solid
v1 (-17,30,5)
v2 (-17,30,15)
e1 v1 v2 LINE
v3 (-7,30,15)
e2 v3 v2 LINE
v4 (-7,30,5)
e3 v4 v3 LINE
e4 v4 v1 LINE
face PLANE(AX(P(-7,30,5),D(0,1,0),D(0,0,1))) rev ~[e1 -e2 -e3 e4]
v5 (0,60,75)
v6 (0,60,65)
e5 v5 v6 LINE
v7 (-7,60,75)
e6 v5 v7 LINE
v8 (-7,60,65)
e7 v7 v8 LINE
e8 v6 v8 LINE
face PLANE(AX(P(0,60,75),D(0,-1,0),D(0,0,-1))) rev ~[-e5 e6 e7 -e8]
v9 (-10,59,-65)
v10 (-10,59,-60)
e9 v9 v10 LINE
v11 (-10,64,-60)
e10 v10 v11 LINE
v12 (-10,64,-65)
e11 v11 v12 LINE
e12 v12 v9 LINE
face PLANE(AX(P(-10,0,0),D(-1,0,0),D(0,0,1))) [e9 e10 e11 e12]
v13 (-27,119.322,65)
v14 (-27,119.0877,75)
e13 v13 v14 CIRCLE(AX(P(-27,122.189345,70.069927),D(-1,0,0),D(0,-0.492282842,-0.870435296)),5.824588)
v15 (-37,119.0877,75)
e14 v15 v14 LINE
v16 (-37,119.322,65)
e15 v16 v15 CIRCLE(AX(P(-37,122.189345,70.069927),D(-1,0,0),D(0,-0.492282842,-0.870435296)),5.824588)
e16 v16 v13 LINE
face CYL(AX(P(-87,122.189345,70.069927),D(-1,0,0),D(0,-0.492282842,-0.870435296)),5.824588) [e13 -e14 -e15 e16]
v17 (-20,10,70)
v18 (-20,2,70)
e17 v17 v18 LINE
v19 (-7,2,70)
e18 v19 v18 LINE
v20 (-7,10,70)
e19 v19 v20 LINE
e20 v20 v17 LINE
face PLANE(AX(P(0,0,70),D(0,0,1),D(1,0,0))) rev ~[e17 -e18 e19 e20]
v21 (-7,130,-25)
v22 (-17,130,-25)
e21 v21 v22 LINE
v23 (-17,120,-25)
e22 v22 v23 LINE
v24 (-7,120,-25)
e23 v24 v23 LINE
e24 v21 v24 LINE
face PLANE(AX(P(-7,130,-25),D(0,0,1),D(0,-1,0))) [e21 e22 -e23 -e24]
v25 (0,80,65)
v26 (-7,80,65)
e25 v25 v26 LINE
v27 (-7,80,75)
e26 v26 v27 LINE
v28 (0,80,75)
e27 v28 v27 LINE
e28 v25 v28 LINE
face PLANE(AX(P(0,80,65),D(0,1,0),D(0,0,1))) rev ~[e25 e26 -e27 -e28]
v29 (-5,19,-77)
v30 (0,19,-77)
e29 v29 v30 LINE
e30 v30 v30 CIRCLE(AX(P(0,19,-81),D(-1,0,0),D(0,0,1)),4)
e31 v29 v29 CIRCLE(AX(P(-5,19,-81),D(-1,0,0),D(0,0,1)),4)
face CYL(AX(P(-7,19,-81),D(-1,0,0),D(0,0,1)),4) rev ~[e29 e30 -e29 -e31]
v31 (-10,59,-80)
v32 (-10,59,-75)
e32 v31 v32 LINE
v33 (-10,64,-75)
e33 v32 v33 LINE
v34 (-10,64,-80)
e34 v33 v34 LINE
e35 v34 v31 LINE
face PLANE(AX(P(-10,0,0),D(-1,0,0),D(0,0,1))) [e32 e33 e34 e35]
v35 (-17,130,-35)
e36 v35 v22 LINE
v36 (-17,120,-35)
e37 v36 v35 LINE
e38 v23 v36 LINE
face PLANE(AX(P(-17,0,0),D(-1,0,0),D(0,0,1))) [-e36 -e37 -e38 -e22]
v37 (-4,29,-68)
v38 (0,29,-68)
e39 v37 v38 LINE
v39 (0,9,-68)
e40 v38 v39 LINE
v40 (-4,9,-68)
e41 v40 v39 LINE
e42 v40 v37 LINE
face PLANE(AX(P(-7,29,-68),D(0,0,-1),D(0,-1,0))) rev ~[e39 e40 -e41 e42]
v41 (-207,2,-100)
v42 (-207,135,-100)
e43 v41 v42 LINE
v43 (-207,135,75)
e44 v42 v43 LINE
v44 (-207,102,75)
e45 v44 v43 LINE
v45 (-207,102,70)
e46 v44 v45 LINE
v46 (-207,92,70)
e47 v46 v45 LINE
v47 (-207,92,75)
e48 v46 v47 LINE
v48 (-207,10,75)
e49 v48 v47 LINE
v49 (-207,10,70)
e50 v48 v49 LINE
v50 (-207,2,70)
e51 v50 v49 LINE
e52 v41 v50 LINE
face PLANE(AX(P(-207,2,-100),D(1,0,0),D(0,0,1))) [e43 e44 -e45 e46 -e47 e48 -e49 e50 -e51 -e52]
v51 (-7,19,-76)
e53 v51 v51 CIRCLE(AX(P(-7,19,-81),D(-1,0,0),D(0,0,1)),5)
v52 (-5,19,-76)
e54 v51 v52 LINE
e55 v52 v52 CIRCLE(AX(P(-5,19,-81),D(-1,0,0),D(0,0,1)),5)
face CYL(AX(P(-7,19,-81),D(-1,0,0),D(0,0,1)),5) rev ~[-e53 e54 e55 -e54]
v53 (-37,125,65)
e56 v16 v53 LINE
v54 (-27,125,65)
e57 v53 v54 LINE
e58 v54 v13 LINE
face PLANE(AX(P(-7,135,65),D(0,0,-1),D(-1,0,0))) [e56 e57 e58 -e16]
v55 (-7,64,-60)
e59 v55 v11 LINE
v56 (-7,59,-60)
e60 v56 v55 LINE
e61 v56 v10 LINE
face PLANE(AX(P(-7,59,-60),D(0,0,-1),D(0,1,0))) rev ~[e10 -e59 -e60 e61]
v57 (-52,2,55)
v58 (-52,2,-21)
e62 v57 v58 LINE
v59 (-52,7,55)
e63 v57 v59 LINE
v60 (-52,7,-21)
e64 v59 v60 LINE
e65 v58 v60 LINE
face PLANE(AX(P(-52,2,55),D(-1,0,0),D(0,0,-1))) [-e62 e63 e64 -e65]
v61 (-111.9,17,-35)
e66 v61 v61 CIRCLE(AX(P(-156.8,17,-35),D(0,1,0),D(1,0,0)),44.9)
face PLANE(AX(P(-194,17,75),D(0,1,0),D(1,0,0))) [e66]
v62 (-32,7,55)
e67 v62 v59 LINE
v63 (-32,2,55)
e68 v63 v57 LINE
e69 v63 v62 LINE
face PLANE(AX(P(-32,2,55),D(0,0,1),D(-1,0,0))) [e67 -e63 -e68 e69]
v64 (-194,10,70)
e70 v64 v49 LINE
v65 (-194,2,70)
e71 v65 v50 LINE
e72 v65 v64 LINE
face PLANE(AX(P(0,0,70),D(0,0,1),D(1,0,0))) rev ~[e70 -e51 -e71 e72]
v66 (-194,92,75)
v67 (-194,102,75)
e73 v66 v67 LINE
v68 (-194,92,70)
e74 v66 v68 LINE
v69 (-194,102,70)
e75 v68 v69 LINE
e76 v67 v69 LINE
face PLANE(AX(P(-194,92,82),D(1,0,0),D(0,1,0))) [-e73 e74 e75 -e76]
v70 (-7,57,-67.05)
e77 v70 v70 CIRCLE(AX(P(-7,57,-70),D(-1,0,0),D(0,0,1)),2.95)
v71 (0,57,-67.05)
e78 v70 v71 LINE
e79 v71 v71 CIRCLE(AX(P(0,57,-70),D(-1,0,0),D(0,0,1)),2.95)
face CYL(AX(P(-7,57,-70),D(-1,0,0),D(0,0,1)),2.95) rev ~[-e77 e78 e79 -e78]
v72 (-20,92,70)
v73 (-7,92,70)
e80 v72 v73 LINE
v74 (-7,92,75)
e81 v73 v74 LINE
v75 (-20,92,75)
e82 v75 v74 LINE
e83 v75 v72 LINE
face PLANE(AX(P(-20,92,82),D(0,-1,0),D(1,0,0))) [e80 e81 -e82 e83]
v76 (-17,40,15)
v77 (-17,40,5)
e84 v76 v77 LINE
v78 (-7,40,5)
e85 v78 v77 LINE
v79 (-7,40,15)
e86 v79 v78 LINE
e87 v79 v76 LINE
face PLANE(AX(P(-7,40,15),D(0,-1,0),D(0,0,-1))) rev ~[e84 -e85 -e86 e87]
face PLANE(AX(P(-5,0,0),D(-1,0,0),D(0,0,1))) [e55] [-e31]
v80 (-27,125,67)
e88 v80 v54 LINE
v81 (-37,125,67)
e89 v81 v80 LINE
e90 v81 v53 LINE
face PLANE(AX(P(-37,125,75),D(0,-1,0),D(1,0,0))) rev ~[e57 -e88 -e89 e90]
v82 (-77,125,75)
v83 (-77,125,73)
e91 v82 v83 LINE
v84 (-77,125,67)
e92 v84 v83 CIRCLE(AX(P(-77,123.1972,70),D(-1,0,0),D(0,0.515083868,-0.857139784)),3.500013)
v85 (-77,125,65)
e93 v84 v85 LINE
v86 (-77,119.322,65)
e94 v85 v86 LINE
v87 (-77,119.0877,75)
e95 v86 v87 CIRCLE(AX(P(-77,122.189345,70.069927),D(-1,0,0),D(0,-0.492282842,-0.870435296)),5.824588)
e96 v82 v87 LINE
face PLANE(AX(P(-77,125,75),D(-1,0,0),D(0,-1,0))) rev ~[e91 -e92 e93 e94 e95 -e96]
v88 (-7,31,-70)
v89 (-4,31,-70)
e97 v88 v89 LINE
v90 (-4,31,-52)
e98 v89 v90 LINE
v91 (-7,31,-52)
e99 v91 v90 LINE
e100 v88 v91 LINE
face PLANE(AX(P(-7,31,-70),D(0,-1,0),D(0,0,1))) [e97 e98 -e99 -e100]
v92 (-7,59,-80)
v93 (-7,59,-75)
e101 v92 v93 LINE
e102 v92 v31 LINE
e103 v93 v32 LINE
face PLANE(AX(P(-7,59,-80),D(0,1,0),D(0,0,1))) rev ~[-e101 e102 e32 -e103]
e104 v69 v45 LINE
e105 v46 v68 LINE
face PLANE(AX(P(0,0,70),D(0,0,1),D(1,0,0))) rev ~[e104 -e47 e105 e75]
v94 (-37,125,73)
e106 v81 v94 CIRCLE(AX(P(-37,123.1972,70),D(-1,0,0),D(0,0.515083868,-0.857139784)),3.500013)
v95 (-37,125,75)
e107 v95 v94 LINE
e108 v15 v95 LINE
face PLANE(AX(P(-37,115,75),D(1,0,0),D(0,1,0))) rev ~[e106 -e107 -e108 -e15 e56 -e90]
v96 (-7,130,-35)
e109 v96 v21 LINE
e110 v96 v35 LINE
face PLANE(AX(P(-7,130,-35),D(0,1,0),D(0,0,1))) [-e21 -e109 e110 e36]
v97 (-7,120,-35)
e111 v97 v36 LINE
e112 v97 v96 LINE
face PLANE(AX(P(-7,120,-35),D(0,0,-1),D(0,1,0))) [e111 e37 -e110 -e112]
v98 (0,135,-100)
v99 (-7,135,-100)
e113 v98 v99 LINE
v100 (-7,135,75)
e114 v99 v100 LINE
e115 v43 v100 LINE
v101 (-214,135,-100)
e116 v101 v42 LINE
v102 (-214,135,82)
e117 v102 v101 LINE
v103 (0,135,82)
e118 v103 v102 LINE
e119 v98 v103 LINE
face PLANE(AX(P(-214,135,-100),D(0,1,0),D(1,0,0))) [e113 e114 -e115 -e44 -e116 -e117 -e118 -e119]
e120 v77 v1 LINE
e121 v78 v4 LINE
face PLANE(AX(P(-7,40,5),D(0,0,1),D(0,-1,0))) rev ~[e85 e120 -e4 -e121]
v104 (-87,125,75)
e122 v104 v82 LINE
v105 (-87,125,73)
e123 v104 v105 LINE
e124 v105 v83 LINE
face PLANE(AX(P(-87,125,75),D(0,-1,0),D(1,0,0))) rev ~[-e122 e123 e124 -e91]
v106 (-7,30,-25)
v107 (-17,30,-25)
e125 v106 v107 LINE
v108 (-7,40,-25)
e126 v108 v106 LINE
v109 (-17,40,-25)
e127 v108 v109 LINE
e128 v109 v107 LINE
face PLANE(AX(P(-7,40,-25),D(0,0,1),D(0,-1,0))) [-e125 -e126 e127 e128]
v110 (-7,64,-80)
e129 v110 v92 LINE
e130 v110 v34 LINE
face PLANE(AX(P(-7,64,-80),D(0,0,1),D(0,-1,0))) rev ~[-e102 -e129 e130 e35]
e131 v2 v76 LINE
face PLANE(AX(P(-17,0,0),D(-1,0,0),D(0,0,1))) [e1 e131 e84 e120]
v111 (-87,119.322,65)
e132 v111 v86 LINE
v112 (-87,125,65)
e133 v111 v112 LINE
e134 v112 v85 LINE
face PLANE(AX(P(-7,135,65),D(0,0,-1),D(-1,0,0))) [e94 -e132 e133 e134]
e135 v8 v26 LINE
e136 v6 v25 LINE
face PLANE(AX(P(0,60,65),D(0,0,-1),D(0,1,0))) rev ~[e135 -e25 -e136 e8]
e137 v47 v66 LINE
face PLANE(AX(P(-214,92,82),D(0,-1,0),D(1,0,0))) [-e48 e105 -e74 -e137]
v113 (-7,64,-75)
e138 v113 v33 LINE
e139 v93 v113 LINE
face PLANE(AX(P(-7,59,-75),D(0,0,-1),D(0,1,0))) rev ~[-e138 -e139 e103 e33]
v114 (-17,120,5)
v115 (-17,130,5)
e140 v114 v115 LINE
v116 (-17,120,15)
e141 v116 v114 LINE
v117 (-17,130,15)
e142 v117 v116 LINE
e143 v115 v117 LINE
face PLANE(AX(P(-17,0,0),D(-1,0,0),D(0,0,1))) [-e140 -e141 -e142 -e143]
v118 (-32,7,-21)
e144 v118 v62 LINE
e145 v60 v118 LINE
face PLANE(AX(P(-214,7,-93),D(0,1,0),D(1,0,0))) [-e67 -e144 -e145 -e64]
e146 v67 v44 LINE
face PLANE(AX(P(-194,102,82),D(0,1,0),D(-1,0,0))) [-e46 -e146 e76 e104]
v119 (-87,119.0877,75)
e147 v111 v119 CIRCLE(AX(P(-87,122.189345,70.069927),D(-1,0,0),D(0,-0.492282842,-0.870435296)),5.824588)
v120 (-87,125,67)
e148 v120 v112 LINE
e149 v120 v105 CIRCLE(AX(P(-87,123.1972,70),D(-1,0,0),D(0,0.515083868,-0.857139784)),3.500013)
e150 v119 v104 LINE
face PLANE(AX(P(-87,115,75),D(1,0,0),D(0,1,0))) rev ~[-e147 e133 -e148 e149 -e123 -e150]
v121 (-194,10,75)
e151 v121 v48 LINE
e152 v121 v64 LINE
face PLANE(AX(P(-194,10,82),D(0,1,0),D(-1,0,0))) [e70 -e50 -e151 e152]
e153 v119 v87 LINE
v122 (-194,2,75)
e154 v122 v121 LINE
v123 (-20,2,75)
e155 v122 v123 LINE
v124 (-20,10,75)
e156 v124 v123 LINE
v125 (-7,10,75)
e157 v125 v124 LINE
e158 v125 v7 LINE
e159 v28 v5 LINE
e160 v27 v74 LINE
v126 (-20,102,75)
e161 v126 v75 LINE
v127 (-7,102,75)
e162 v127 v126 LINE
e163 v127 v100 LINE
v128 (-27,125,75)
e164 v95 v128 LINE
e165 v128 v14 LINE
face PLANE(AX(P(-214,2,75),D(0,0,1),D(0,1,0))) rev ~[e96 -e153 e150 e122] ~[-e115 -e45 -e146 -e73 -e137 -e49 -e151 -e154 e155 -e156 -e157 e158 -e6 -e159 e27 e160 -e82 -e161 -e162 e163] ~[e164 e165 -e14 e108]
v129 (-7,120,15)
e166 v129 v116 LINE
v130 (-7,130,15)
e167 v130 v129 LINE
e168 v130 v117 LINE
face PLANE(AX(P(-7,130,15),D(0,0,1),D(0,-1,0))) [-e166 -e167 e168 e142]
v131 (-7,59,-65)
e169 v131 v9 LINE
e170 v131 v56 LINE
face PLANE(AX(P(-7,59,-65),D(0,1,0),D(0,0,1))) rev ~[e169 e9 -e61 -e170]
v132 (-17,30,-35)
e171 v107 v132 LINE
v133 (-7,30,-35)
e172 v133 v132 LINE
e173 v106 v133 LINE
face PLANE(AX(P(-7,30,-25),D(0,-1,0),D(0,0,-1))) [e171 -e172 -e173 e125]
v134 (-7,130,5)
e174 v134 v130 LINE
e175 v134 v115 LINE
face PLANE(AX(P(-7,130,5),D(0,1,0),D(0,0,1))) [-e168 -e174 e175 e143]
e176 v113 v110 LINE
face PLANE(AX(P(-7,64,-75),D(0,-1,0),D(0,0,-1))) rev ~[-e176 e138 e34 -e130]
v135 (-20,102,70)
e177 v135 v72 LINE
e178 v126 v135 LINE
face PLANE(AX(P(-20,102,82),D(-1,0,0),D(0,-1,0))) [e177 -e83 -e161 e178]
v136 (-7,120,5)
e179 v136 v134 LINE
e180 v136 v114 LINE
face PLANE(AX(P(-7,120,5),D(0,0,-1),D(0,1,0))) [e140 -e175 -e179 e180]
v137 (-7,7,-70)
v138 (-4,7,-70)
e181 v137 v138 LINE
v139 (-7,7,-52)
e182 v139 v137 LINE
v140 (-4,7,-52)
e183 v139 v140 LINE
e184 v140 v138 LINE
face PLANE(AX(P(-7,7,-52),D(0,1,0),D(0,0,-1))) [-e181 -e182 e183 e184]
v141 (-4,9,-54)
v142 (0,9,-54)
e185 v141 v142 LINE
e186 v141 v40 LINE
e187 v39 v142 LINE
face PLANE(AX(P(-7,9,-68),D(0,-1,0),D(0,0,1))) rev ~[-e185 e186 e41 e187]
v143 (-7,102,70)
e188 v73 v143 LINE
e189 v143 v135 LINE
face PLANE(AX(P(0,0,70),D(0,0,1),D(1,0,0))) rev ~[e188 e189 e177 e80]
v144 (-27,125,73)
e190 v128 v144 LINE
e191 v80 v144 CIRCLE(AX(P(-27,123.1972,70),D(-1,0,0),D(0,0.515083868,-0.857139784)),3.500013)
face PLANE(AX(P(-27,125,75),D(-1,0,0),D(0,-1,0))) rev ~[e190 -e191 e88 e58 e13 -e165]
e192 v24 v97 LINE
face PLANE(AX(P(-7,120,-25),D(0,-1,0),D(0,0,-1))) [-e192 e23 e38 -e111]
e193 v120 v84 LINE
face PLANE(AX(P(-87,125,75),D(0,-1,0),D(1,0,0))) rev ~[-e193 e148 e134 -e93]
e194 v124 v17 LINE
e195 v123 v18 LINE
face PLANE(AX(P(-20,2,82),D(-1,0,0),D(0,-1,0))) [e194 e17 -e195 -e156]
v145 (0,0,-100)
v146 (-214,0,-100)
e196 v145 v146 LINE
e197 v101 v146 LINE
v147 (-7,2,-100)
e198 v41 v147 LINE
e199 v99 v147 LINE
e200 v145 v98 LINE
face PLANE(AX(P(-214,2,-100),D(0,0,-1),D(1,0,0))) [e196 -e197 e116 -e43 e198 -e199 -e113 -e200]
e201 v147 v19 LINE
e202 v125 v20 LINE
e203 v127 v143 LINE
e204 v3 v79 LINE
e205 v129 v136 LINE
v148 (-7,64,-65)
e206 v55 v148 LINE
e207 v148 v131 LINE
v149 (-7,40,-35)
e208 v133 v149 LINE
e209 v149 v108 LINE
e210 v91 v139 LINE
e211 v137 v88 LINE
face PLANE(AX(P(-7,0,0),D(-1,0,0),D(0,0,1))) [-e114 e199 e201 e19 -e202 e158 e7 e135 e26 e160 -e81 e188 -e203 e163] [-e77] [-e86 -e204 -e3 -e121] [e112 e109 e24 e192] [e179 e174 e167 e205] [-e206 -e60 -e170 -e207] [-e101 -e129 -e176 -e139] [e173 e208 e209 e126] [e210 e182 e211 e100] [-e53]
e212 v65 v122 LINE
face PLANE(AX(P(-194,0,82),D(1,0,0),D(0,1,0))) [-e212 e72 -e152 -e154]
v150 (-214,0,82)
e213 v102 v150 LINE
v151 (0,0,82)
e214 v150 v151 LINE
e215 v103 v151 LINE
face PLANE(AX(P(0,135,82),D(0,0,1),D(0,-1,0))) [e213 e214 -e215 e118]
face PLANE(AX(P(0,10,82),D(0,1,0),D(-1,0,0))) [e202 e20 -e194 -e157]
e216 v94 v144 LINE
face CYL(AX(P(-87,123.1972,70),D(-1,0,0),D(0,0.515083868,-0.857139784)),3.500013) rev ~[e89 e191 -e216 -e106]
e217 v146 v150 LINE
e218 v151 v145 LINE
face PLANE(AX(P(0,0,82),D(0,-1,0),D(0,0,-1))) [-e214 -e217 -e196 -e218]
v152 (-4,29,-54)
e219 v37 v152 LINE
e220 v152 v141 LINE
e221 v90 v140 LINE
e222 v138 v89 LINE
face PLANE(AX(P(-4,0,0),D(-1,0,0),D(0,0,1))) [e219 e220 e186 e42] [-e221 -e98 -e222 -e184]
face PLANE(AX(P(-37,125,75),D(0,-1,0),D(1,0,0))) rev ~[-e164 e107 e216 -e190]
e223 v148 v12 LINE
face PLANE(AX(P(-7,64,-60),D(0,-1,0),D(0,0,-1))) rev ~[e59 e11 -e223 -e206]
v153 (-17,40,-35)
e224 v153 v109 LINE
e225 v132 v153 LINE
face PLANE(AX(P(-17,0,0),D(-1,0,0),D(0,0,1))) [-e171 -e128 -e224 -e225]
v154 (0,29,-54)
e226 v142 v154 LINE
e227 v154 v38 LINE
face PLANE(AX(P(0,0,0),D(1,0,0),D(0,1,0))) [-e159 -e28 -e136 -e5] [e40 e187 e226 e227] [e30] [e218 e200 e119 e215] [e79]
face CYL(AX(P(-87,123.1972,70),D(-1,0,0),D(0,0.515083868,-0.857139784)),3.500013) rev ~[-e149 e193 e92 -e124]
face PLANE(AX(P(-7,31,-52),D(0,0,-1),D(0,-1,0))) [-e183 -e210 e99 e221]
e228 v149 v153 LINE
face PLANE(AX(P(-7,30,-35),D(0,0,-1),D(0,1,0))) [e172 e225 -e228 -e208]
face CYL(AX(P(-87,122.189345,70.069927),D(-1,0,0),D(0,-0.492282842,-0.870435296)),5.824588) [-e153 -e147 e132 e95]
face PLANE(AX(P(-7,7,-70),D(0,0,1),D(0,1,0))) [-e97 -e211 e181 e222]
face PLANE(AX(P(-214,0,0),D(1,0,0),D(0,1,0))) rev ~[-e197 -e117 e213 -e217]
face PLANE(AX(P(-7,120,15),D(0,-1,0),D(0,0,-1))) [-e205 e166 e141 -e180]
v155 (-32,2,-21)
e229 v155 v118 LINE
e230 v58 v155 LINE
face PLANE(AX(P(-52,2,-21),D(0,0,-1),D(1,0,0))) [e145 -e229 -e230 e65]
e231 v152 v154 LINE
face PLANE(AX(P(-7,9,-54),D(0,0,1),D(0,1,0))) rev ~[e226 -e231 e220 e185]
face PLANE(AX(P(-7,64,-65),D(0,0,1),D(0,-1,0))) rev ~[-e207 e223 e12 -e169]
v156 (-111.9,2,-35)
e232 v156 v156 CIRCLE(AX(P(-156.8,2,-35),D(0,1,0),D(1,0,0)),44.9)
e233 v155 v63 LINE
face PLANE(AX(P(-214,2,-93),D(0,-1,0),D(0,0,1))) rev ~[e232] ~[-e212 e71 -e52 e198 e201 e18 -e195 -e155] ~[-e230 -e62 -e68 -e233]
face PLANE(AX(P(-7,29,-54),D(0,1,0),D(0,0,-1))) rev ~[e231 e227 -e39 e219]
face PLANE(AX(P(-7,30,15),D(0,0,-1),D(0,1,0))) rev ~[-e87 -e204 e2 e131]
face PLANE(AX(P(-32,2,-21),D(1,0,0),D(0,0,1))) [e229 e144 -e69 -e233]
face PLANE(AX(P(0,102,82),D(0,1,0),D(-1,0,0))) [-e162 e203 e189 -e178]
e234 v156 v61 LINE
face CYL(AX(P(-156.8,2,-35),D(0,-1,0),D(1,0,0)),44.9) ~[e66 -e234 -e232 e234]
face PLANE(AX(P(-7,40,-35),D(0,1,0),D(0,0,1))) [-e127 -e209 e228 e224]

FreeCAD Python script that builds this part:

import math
import FreeCAD as App
import Part
import Sketcher
Q = App.Units.Quantity


def add_polygon(sketch, points):
    """Adds a closed chain of lines whose ends are joined by coincident constraints."""
    first, n = sketch.GeometryCount, len(points)
    for a, b in zip(points, points[1:] + points[:1]):
        sketch.addGeometry(Part.LineSegment(App.Vector(*a, 0), App.Vector(*b, 0)), False)
    for i in range(n):
        sketch.addConstraint(Sketcher.Constraint("Coincident", first + i, 2, first + (i + 1) % n, 1))

doc = App.newDocument("Part")
params = doc.addObject("Spreadsheet::Sheet", "Params")
for row, (alias, value) in enumerate([
    ("sketch1_width", "135 mm"),
    ("sketch1_height", "182 mm"),
    ("pad1_length", "214 mm"),
    ("sketch2_width", "133 mm"),
    ("sketch2_height", "168 mm"),
    ("pocket1_length", "207 mm"),
    ("sketch3_width", "20 mm"),
    ("sketch3_height", "10 mm"),
    ("pad2_length", "12 mm"),
    ("sketch4_width", "20 mm"),
    ("sketch4_height", "10 mm"),
    ("sketch5_width", "10 mm"),
    ("pad3_length", "10 mm"),
    ("sketch6_width", "10 mm"),
    ("pad4_length", "10 mm"),
    ("sketch7_diameter", "8 mm"),
    ("sketch7_width", "20 mm"),
    ("sketch7_height", "14 mm"),
    ("sketch8_radius", "3.5 mm"),
    ("sketch8_height", "6 mm"),
    ("pocket4_length", "60 mm"),
    ("sketch9_height", "10 mm"),
    ("pocket5_length", "60 mm"),
    ("sketch10_width", "20 mm"),
    ("sketch10_height", "76 mm"),
    ("pad5_length", "5 mm"),
    ("sketch11_width", "207 mm"),
    ("sketch11_height", "133 mm"),
    ("sketch12_width", "7 mm"),
    ("sketch12_height", "175 mm"),
    ("pad6_length", "133 mm"),
    ("sketch13_diameter", "89.8 mm"),
    ("pad7_length", "15 mm"),
    ("sketch14_width", "24 mm"),
    ("sketch14_height", "18 mm"),
    ("pocket7_length", "3 mm"),
    ("sketch15_diameter", "5.9 mm"),
    ("pocket8_length", "7 mm"),
    ("sketch16_width", "5 mm"),
    ("pad8_length", "3 mm"),
    ("sketch17_diameter", "10 mm"),
    ("pocket9_length", "2 mm"),
], start=1):
    params.set(f"A{row}", alias)
    params.set(f"B{row}", "=" + value)
    params.setAlias(f"B{row}", alias)

body = doc.addObject("PartDesign::Body", "Body")

sketch1 = body.newObject("Sketcher::SketchObject", "Sketch")
sketch1.AttachmentSupport = (doc.getObject("YZ_Plane"), [""])
sketch1.MapMode = "FlatFace"
add_polygon(sketch1, [(135, -100), (135, 82), (0, 82), (0, -100)])
sketch1.addConstraint([
    Sketcher.Constraint("Vertical", 0),
    Sketcher.Constraint("Horizontal", 1),
    Sketcher.Constraint("Vertical", 2),
    Sketcher.Constraint("Horizontal", 3),
    Sketcher.Constraint("PointOnObject", 1, 2, -2),
    Sketcher.Constraint("DistanceX", 1, 2, 1, 1, Q("135 mm")),
    Sketcher.Constraint("DistanceY", 0, 1, 0, 2, Q("182 mm")),
    Sketcher.Constraint("DistanceY", 2, 2, -1, 1, Q("100 mm")),
])
sketch1.setExpression("Constraints[9]", "Params.sketch1_width")
sketch1.setExpression("Constraints[10]", "Params.sketch1_height")
pad1 = body.newObject("PartDesign::Pad", "Pad")
pad1.Profile = sketch1
pad1.setExpression("Length", "Params.pad1_length")
pad1.Reversed = True

sketch2 = body.newObject("Sketcher::SketchObject", "Sketch001")
sketch2.AttachmentSupport = (doc.getObject("YZ_Plane"), [""])
sketch2.MapMode = "FlatFace"
sketch2.AttachmentOffset = App.Placement(App.Vector(0, 0, -214), App.Rotation())
add_polygon(sketch2, [(2, 75), (135, 75), (135, -93), (2, -93)])
sketch2.addConstraint([
    Sketcher.Constraint("Horizontal", 0),
    Sketcher.Constraint("Vertical", 1),
    Sketcher.Constraint("Horizontal", 2),
    Sketcher.Constraint("Vertical", 3),
    Sketcher.Constraint("DistanceX", -1, 1, 2, 2, Q("2 mm")),
    Sketcher.Constraint("DistanceX", 0, 1, 0, 2, Q("133 mm")),
    Sketcher.Constraint("DistanceY", 1, 2, 1, 1, Q("168 mm")),
    Sketcher.Constraint("DistanceY", -1, 1, 0, 2, Q("75 mm")),
])
sketch2.setExpression("Constraints[9]", "Params.sketch2_width")
sketch2.setExpression("Constraints[10]", "Params.sketch2_height")
pocket1 = body.newObject("PartDesign::Pocket", "Pocket")
pocket1.Profile = sketch2
pocket1.setExpression("Length", "Params.pocket1_length")
pocket1.Reversed = True

sketch3 = body.newObject("Sketcher::SketchObject", "Sketch002")
sketch3.AttachmentSupport = (doc.getObject("XY_Plane"), [""])
sketch3.MapMode = "FlatFace"
sketch3.AttachmentOffset = App.Placement(App.Vector(0, 0, 82), App.Rotation())
add_polygon(sketch3, [(-20, 10), (-20, 0), (0, 0), (0, 10)])
add_polygon(sketch3, [(-214, 102), (-214, 92), (-194, 92), (-194, 102)])
add_polygon(sketch3, [(-20, 92), (0, 92), (0, 102), (-20, 102)])
add_polygon(sketch3, [(-214, 0), (-194, 0), (-194, 10), (-214, 10)])
sketch3.addConstraint([
    Sketcher.Constraint("Vertical", 0),
    Sketcher.Constraint("Horizontal", 1),
    Sketcher.Constraint("Vertical", 2),
    Sketcher.Constraint("Horizontal", 3),
    Sketcher.Constraint("Vertical", 4),
    Sketcher.Constraint("Horizontal", 5),
    Sketcher.Constraint("Vertical", 6),
    Sketcher.Constraint("Horizontal", 7),
    Sketcher.Constraint("Horizontal", 8),
    Sketcher.Constraint("Vertical", 9),
    Sketcher.Constraint("Horizontal", 10),
    Sketcher.Constraint("Vertical", 11),
    Sketcher.Constraint("Horizontal", 12),
    Sketcher.Constraint("Vertical", 13),
    Sketcher.Constraint("Horizontal", 14),
    Sketcher.Constraint("Vertical", 15),
    Sketcher.Constraint("Coincident", 1, 2, -1, 1),
    Sketcher.Constraint("PointOnObject", 8, 2, -2),
    Sketcher.Constraint("PointOnObject", 12, 2, -1),
    Sketcher.Constraint("Horizontal", 5, 2, 8, 2),
    Sketcher.Constraint("Horizontal", 7, 2, 9, 2),
    Sketcher.Constraint("Horizontal", 3, 2, 13, 2),
    Sketcher.Constraint("Vertical", 3, 2, 10, 2),
    Sketcher.Constraint("Vertical", 6, 2, 12, 2),
    Sketcher.Constraint("Vertical", 7, 2, 14, 2),
    Sketcher.Constraint("Equal", 3, 5),
    Sketcher.Constraint("Equal", 2, 4),
    Sketcher.Constraint("DistanceX", 1, 1, 1, 2, Q("20 mm")),
    Sketcher.Constraint("DistanceY", 0, 2, 0, 1, Q("10 mm")),
    Sketcher.Constraint("DistanceX", 4, 2, -1, 1, Q("214 mm")),
    Sketcher.Constraint("DistanceY", -1, 1, 4, 2, Q("92 mm")),
])
sketch3.setExpression("Constraints[43]", "Params.sketch3_width")
sketch3.setExpression("Constraints[44]", "Params.sketch3_height")
pad2 = body.newObject("PartDesign::Pad", "Pad001")
pad2.Profile = sketch3
pad2.setExpression("Length", "Params.pad2_length")
pad2.Reversed = True

sketch4 = body.newObject("Sketcher::SketchObject", "Sketch003")
sketch4.AttachmentSupport = (doc.getObject("YZ_Plane"), [""])
sketch4.MapMode = "FlatFace"
add_polygon(sketch4, [(80, 75), (60, 75), (60, 65), (80, 65)])
sketch4.addConstraint([
    Sketcher.Constraint("Horizontal", 0),
    Sketcher.Constraint("Vertical", 1),
    Sketcher.Constraint("Horizontal", 2),
    Sketcher.Constraint("Vertical", 3),
    Sketcher.Constraint("DistanceX", 0, 2, 0, 1, Q("20 mm")),
    Sketcher.Constraint("DistanceX", -1, 1, 0, 2, Q("60 mm")),
    Sketcher.Constraint("DistanceY", 1, 2, 1, 1, Q("10 mm")),
    Sketcher.Constraint("DistanceY", -1, 1, 0, 2, Q("75 mm")),
])
sketch4.setExpression("Constraints[8]", "Params.sketch4_width")
sketch4.setExpression("Constraints[10]", "Params.sketch4_height")
pocket2 = body.newObject("PartDesign::Pocket", "Pocket001")
pocket2.Profile = sketch4
pocket2.Type = "UpToFirst"

sketch5 = body.newObject("Sketcher::SketchObject", "Sketch004")
sketch5.AttachmentSupport = (doc.getObject("YZ_Plane"), [""])
sketch5.MapMode = "FlatFace"
sketch5.AttachmentOffset = App.Placement(App.Vector(0, 0, -7), App.Rotation())
add_polygon(sketch5, [(130, -25), (130, -35), (120, -35), (120, -25)])
add_polygon(sketch5, [(130, 15), (130, 5), (120, 5), (120, 15)])
add_polygon(sketch5, [(40, -25), (40, -35), (30, -35), (30, -25)])
add_polygon(sketch5, [(30, 15), (40, 15), (40, 5), (30, 5)])
sketch5.addConstraint([
    Sketcher.Constraint("Vertical", 0),
    Sketcher.Constraint("Horizontal", 1),
    Sketcher.Constraint("Vertical", 2),
    Sketcher.Constraint("Horizontal", 3),
    Sketcher.Constraint("Vertical", 4),
    Sketcher.Constraint("Horizontal", 5),
    Sketcher.Constraint("Vertical", 6),
    Sketcher.Constraint("Horizontal", 7),
    Sketcher.Constraint("Vertical", 8),
    Sketcher.Constraint("Horizontal", 9),
    Sketcher.Constraint("Vertical", 10),
    Sketcher.Constraint("Horizontal", 11),
    Sketcher.Constraint("Horizontal", 12),
    Sketcher.Constraint("Vertical", 13),
    Sketcher.Constraint("Horizontal", 14),
    Sketcher.Constraint("Vertical", 15),
    Sketcher.Constraint("Horizontal", 1, 2, 8, 2),
    Sketcher.Constraint("Horizontal", 3, 2, 10, 2),
    Sketcher.Constraint("Horizontal", 7, 2, 12, 2),
    Sketcher.Constraint("Horizontal", 5, 2, 13, 2),
    Sketcher.Constraint("Vertical", 3, 2, 4, 2),
    Sketcher.Constraint("Vertical", 2, 2, 5, 2),
    Sketcher.Constraint("Vertical", 11, 2, 12, 2),
    Sketcher.Constraint("Vertical", 10, 2, 14, 2),
    Sketcher.Constraint("Equal", 7, 9),
    Sketcher.Constraint("Equal", 14, 0),
    Sketcher.Constraint("Equal", 2, 4),
    Sketcher.Constraint("DistanceX", 1, 2, 1, 1, Q("10 mm")),
    Sketcher.Constraint("DistanceY", -1, 1, 4, 2, Q("5 mm")),
    Sketcher.Constraint("DistanceY", 1, 2, 6, 2, Q("50 mm")),
    Sketcher.Constraint("DistanceX", 9, 2, 0, 2, Q("100 mm")),
    Sketcher.Constraint("DistanceX", -1, 1, 0, 2, Q("130 mm")),
])
sketch5.setExpression("Constraints[43]", "Params.sketch5_width")
pad3 = body.newObject("PartDesign::Pad", "Pad002")
pad3.Profile = sketch5
pad3.setExpression("Length", "Params.pad3_length")
pad3.Reversed = True

sketch6 = body.newObject("Sketcher::SketchObject", "Sketch005")
sketch6.AttachmentSupport = (doc.getObject("XY_Plane"), [""])
sketch6.MapMode = "FlatFace"
sketch6.AttachmentOffset = App.Placement(App.Vector(0, 0, 75), App.Rotation())
add_polygon(sketch6, [(-27, 125), (-27, 115), (-37, 115), (-37, 125)])
add_polygon(sketch6, [(-77, 125), (-77, 115), (-87, 115), (-87, 125)])
sketch6.addConstraint([
    Sketcher.Constraint("Vertical", 0),
    Sketcher.Constraint("Horizontal", 1),
    Sketcher.Constraint("Vertical", 2),
    Sketcher.Constraint("Horizontal", 3),
    Sketcher.Constraint("Vertical", 4),
    Sketcher.Constraint("Horizontal", 5),
    Sketcher.Constraint("Vertical", 6),
    Sketcher.Constraint("Horizontal", 7),
    Sketcher.Constraint("Horizontal", 1, 2, 4, 2),
    Sketcher.Constraint("Horizontal", 3, 2, 6, 2),
    Sketcher.Constraint("Equal", 3, 5),
    Sketcher.Constraint("Equal", 7, 0),
    Sketcher.Constraint("DistanceX", 1, 2, 1, 1, Q("10 mm")),
    Sketcher.Constraint("DistanceX", 4, 2, 0, 2, Q("50 mm")),
    Sketcher.Constraint("DistanceX", 0, 2, -1, 1, Q("27 mm")),
    Sketcher.Constraint("DistanceY", -1, 1, 0, 2, Q("115 mm")),
])
sketch6.setExpression("Constraints[20]", "Params.sketch6_width")
pad4 = body.newObject("PartDesign::Pad", "Pad003")
pad4.Profile = sketch6
pad4.setExpression("Length", "Params.pad4_length")
pad4.Reversed = True

sketch7 = body.newObject("Sketcher::SketchObject", "Sketch006")
sketch7.AttachmentSupport = (doc.getObject("YZ_Plane"), [""])
sketch7.MapMode = "FlatFace"
sketch7.AttachmentOffset = App.Placement(App.Vector(0, 0, -7), App.Rotation())
add_polygon(sketch7, [(29, -68), (9, -68), (9, -54), (29, -54)])
sketch7.addGeometry(Part.Circle(App.Vector(19, -81, 0), App.Vector(0, 0, 1), 4), False)
sketch7.addConstraint([
    Sketcher.Constraint("Horizontal", 0),
    Sketcher.Constraint("Vertical", 1),
    Sketcher.Constraint("Horizontal", 2),
    Sketcher.Constraint("Vertical", 3),
    Sketcher.Constraint("Diameter", 4, Q("8 mm")),
    Sketcher.Constraint("DistanceX", 0, 2, 0, 1, Q("20 mm")),
    Sketcher.Constraint("DistanceY", 1, 1, 1, 2, Q("14 mm")),
    Sketcher.Constraint("DistanceX", -1, 1, 4, 3, Q("19 mm")),
    Sketcher.Constraint("DistanceY", 4, 3, -1, 1, Q("81 mm")),
    Sketcher.Constraint("DistanceX", -1, 1, 0, 2, Q("9 mm")),
    Sketcher.Constraint("DistanceY", 0, 2, -1, 1, Q("68 mm")),
])
sketch7.setExpression("Constraints[8]", "Params.sketch7_diameter")
sketch7.setExpression("Constraints[9]", "Params.sketch7_width")
sketch7.setExpression("Constraints[10]", "Params.sketch7_height")
pocket3 = body.newObject("PartDesign::Pocket", "Pocket002")
pocket3.Profile = sketch7
pocket3.Type = "UpToFirst"
pocket3.Reversed = True

sketch8 = body.newObject("Sketcher::SketchObject", "Sketch007")
sketch8.AttachmentSupport = (doc.getObject("YZ_Plane"), [""])
sketch8.MapMode = "FlatFace"
sketch8.AttachmentOffset = App.Placement(App.Vector(0, 0, -87), App.Rotation())
sketch8.addGeometry([
    Part.ArcOfCircle(Part.Circle(App.Vector(123.2, 70, 0), App.Vector(0, 0, 1), 3.5), math.radians(59), math.radians(301)),
    Part.LineSegment(App.Vector(125, 73, 0), App.Vector(125, 67, 0)),
], False)
sketch8.addConstraint([
    Sketcher.Constraint("Coincident", 0, 1, 1, 1),
    Sketcher.Constraint("Coincident", 1, 2, 0, 2),
    Sketcher.Constraint("Vertical", 1),
    Sketcher.Constraint("Radius", 0, Q("3.5 mm")),
    Sketcher.Constraint("DistanceY", 1, 2, 1, 1, Q("6 mm")),
    Sketcher.Constraint("DistanceY", -1, 1, 0, 3, Q("70 mm")),
    Sketcher.Constraint("DistanceX", -1, 1, 0, 1, Q("125 mm")),
])
sketch8.setExpression("Constraints[3]", "Params.sketch8_radius")
sketch8.setExpression("Constraints[4]", "Params.sketch8_height")
pocket4 = body.newObject("PartDesign::Pocket", "Pocket003")
pocket4.Profile = sketch8
pocket4.setExpression("Length", "Params.pocket4_length")
pocket4.Reversed = True

sketch9 = body.newObject("Sketcher::SketchObject", "Sketch008")
sketch9.AttachmentSupport = (doc.getObject("YZ_Plane"), [""])
sketch9.MapMode = "FlatFace"
sketch9.AttachmentOffset = App.Placement(App.Vector(0, 0, -87), App.Rotation())
sketch9.addGeometry([
    Part.ArcOfCircle(Part.Circle(App.Vector(122.2, 70.1, 0), App.Vector(0, 0, 1), 5.8), math.radians(122), math.radians(241)),
    Part.LineSegment(App.Vector(119.3, 65, 0), App.Vector(115, 65, 0)),
    Part.LineSegment(App.Vector(115, 65, 0), App.Vector(115, 75, 0)),
    Part.LineSegment(App.Vector(115, 75, 0), App.Vector(119.1, 75, 0)),
], False)
sketch9.addConstraint([
    Sketcher.Constraint("Coincident", 0, 2, 1, 1),
    Sketcher.Constraint("Coincident", 1, 2, 2, 1),
    Sketcher.Constraint("Coincident", 2, 2, 3, 1),
    Sketcher.Constraint("Coincident", 3, 2, 0, 1),
    Sketcher.Constraint("Horizontal", 1),
    Sketcher.Constraint("Vertical", 2),
    Sketcher.Constraint("Horizontal", 3),
    Sketcher.Constraint("Radius", 0, Q("5.8245 mm")),
    Sketcher.Constraint("DistanceX", 1, 2, 1, 1, Q("4.322 mm")),
    Sketcher.Constraint("DistanceY", 2, 1, 2, 2, Q("10 mm")),
    Sketcher.Constraint("DistanceY", -1, 1, 0, 2, Q("65 mm")),
    Sketcher.Constraint("DistanceX", -1, 1, 1, 2, Q("115 mm")),
    Sketcher.Constraint("DistanceY", -1, 1, 0, 3, Q("70.07 mm")),
])
sketch9.setExpression("Constraints[9]", "Params.sketch9_height")
pocket5 = body.newObject("PartDesign::Pocket", "Pocket004")
pocket5.Profile = sketch9
pocket5.setExpression("Length", "Params.pocket5_length")
pocket5.Reversed = True

sketch10 = body.newObject("Sketcher::SketchObject", "Sketch009")
sketch10.AttachmentSupport = (doc.getObject("XZ_Plane"), [""])
sketch10.MapMode = "FlatFace"
sketch10.AttachmentOffset = App.Placement(App.Vector(0, 0, -2), App.Rotation())
add_polygon(sketch10, [(-32, -21), (-52, -21), (-52, 55), (-32, 55)])
sketch10.addConstraint([
    Sketcher.Constraint("Horizontal", 0),
    Sketcher.Constraint("Vertical", 1),
    Sketcher.Constraint("Horizontal", 2),
    Sketcher.Constraint("Vertical", 3),
    Sketcher.Constraint("DistanceX", 0, 2, 0, 1, Q("20 mm")),
    Sketcher.Constraint("DistanceY", 1, 1, 1, 2, Q("76 mm")),
    Sketcher.Constraint("DistanceX", 0, 2, -1, 1, Q("52 mm")),
    Sketcher.Constraint("DistanceY", 0, 2, -1, 1, Q("21 mm")),
])
sketch10.setExpression("Constraints[8]", "Params.sketch10_width")
sketch10.setExpression("Constraints[9]", "Params.sketch10_height")
pad5 = body.newObject("PartDesign::Pad", "Pad004")
pad5.Profile = sketch10
pad5.setExpression("Length", "Params.pad5_length")
pad5.Reversed = True

sketch11 = body.newObject("Sketcher::SketchObject", "Sketch010")
sketch11.AttachmentSupport = (doc.getObject("XY_Plane"), [""])
sketch11.MapMode = "FlatFace"
sketch11.AttachmentOffset = App.Placement(App.Vector(0, 0, -93), App.Rotation())
add_polygon(sketch11, [(-7, 2), (-7, 135), (-214, 135), (-214, 2)])
sketch11.addConstraint([
    Sketcher.Constraint("Vertical", 0),
    Sketcher.Constraint("Horizontal", 1),
    Sketcher.Constraint("Vertical", 2),
    Sketcher.Constraint("Horizontal", 3),
    Sketcher.Constraint("DistanceX", 1, 2, 1, 1, Q("207 mm")),
    Sketcher.Constraint("DistanceY", 0, 1, 0, 2, Q("133 mm")),
    Sketcher.Constraint("DistanceX", 0, 2, -1, 1, Q("7 mm")),
    Sketcher.Constraint("DistanceY", -1, 1, 0, 2, Q("135 mm")),
])
sketch11.setExpression("Constraints[8]", "Params.sketch11_width")
sketch11.setExpression("Constraints[9]", "Params.sketch11_height")
pocket6 = body.newObject("PartDesign::Pocket", "Pocket005")
pocket6.Profile = sketch11
pocket6.Type = "UpToFirst"

sketch12 = body.newObject("Sketcher::SketchObject", "Sketch011")
sketch12.AttachmentSupport = (doc.getObject("XZ_Plane"), [""])
sketch12.MapMode = "FlatFace"
sketch12.AttachmentOffset = App.Placement(App.Vector(0, 0, -2), App.Rotation())
add_polygon(sketch12, [(-214, 75), (-207, 75), (-207, -100), (-214, -100)])
sketch12.addConstraint([
    Sketcher.Constraint("Horizontal", 0),
    Sketcher.Constraint("Vertical", 1),
    Sketcher.Constraint("Horizontal", 2),
    Sketcher.Constraint("Vertical", 3),
    Sketcher.Constraint("DistanceX", 0, 1, 0, 2, Q("7 mm")),
    Sketcher.Constraint("DistanceY", 1, 2, 1, 1, Q("175 mm")),
    Sketcher.Constraint("DistanceX", 0, 2, -1, 1, Q("207 mm")),
    Sketcher.Constraint("DistanceY", -1, 1, 0, 2, Q("75 mm")),
])
sketch12.setExpression("Constraints[8]", "Params.sketch12_width")
sketch12.setExpression("Constraints[9]", "Params.sketch12_height")
pad6 = body.newObject("PartDesign::Pad", "Pad005")
pad6.Profile = sketch12
pad6.setExpression("Length", "Params.pad6_length")
pad6.Reversed = True

sketch13 = body.newObject("Sketcher::SketchObject", "Sketch012")
sketch13.AttachmentSupport = (doc.getObject("XZ_Plane"), [""])
sketch13.MapMode = "FlatFace"
sketch13.AttachmentOffset = App.Placement(App.Vector(0, 0, -2), App.Rotation())
sketch13.addGeometry(Part.Circle(App.Vector(-157, -35, 0), App.Vector(0, 0, 1), 45), False)
sketch13.addConstraint([
    Sketcher.Constraint("Diameter", 0, Q("89.8 mm")),
    Sketcher.Constraint("DistanceY", 0, 3, -1, 1, Q("35 mm")),
    Sketcher.Constraint("DistanceX", 0, 3, -1, 1, Q("156.8 mm")),
])
sketch13.setExpression("Constraints[0]", "Params.sketch13_diameter")
pad7 = body.newObject("PartDesign::Pad", "Pad006")
pad7.Profile = sketch13
pad7.setExpression("Length", "Params.pad7_length")
pad7.Reversed = True

sketch14 = body.newObject("Sketcher::SketchObject", "Sketch013")
sketch14.AttachmentSupport = (doc.getObject("YZ_Plane"), [""])
sketch14.MapMode = "FlatFace"
sketch14.AttachmentOffset = App.Placement(App.Vector(0, 0, -7), App.Rotation())
add_polygon(sketch14, [(31, -52), (31, -70), (7, -70), (7, -52)])
sketch14.addConstraint([
    Sketcher.Constraint("Vertical", 0),
    Sketcher.Constraint("Horizontal", 1),
    Sketcher.Constraint("Vertical", 2),
    Sketcher.Constraint("Horizontal", 3),
    Sketcher.Constraint("DistanceX", 1, 2, 1, 1, Q("24 mm")),
    Sketcher.Constraint("DistanceY", 0, 2, 0, 1, Q("18 mm")),
    Sketcher.Constraint("DistanceX", -1, 1, 0, 2, Q("31 mm")),
    Sketcher.Constraint("DistanceY", 0, 2, -1, 1, Q("70 mm")),
])
sketch14.setExpression("Constraints[8]", "Params.sketch14_width")
sketch14.setExpression("Constraints[9]", "Params.sketch14_height")
pocket7 = body.newObject("PartDesign::Pocket", "Pocket006")
pocket7.Profile = sketch14
pocket7.setExpression("Length", "Params.pocket7_length")
pocket7.Reversed = True

sketch15 = body.newObject("Sketcher::SketchObject", "Sketch014")
sketch15.AttachmentSupport = (doc.getObject("YZ_Plane"), [""])
sketch15.MapMode = "FlatFace"
sketch15.AttachmentOffset = App.Placement(App.Vector(0, 0, -7), App.Rotation())
sketch15.addGeometry(Part.Circle(App.Vector(57, -70, 0), App.Vector(0, 0, 1), 3), False)
sketch15.addConstraint([
    Sketcher.Constraint("Diameter", 0, Q("5.9 mm")),
    Sketcher.Constraint("DistanceX", -1, 1, 0, 3, Q("57 mm")),
    Sketcher.Constraint("DistanceY", 0, 3, -1, 1, Q("70 mm")),
])
sketch15.setExpression("Constraints[0]", "Params.sketch15_diameter")
pocket8 = body.newObject("PartDesign::Pocket", "Pocket007")
pocket8.Profile = sketch15
pocket8.setExpression("Length", "Params.pocket8_length")
pocket8.Reversed = True

sketch16 = body.newObject("Sketcher::SketchObject", "Sketch015")
sketch16.AttachmentSupport = (doc.getObject("YZ_Plane"), [""])
sketch16.MapMode = "FlatFace"
sketch16.AttachmentOffset = App.Placement(App.Vector(0, 0, -7), App.Rotation())
add_polygon(sketch16, [(64, -80), (59, -80), (59, -75), (64, -75)])
add_polygon(sketch16, [(64, -65), (59, -65), (59, -60), (64, -60)])
sketch16.addConstraint([
    Sketcher.Constraint("Horizontal", 0),
    Sketcher.Constraint("Vertical", 1),
    Sketcher.Constraint("Horizontal", 2),
    Sketcher.Constraint("Vertical", 3),
    Sketcher.Constraint("Horizontal", 4),
    Sketcher.Constraint("Vertical", 5),
    Sketcher.Constraint("Horizontal", 6),
    Sketcher.Constraint("Vertical", 7),
    Sketcher.Constraint("Vertical", 1, 2, 4, 2),
    Sketcher.Constraint("Vertical", 3, 2, 6, 2),
    Sketcher.Constraint("Equal", 6, 1),
    Sketcher.Constraint("Equal", 3, 5),
    Sketcher.Constraint("DistanceX", 0, 2, 0, 1, Q("5 mm")),
    Sketcher.Constraint("DistanceY", 0, 2, 5, 2, Q("20 mm")),
    Sketcher.Constraint("DistanceX", -1, 1, 0, 2, Q("59 mm")),
    Sketcher.Constraint("DistanceY", 0, 2, -1, 1, Q("80 mm")),
])
sketch16.setExpression("Constraints[20]", "Params.sketch16_width")
pad8 = body.newObject("PartDesign::Pad", "Pad007")
pad8.Profile = sketch16
pad8.setExpression("Length", "Params.pad8_length")
pad8.Reversed = True

sketch17 = body.newObject("Sketcher::SketchObject", "Sketch016")
sketch17.AttachmentSupport = (doc.getObject("YZ_Plane"), [""])
sketch17.MapMode = "FlatFace"
sketch17.AttachmentOffset = App.Placement(App.Vector(0, 0, -7), App.Rotation())
sketch17.addGeometry(Part.Circle(App.Vector(19, -81, 0), App.Vector(0, 0, 1), 5), False)
sketch17.addConstraint([
    Sketcher.Constraint("Diameter", 0, Q("10 mm")),
    Sketcher.Constraint("DistanceX", -1, 1, 0, 3, Q("19 mm")),
    Sketcher.Constraint("DistanceY", 0, 3, -1, 1, Q("81 mm")),
])
sketch17.setExpression("Constraints[0]", "Params.sketch17_diameter")
pocket9 = body.newObject("PartDesign::Pocket", "Pocket008")
pocket9.Profile = sketch17
pocket9.setExpression("Length", "Params.pocket9_length")
pocket9.Reversed = True

doc.recompute()
